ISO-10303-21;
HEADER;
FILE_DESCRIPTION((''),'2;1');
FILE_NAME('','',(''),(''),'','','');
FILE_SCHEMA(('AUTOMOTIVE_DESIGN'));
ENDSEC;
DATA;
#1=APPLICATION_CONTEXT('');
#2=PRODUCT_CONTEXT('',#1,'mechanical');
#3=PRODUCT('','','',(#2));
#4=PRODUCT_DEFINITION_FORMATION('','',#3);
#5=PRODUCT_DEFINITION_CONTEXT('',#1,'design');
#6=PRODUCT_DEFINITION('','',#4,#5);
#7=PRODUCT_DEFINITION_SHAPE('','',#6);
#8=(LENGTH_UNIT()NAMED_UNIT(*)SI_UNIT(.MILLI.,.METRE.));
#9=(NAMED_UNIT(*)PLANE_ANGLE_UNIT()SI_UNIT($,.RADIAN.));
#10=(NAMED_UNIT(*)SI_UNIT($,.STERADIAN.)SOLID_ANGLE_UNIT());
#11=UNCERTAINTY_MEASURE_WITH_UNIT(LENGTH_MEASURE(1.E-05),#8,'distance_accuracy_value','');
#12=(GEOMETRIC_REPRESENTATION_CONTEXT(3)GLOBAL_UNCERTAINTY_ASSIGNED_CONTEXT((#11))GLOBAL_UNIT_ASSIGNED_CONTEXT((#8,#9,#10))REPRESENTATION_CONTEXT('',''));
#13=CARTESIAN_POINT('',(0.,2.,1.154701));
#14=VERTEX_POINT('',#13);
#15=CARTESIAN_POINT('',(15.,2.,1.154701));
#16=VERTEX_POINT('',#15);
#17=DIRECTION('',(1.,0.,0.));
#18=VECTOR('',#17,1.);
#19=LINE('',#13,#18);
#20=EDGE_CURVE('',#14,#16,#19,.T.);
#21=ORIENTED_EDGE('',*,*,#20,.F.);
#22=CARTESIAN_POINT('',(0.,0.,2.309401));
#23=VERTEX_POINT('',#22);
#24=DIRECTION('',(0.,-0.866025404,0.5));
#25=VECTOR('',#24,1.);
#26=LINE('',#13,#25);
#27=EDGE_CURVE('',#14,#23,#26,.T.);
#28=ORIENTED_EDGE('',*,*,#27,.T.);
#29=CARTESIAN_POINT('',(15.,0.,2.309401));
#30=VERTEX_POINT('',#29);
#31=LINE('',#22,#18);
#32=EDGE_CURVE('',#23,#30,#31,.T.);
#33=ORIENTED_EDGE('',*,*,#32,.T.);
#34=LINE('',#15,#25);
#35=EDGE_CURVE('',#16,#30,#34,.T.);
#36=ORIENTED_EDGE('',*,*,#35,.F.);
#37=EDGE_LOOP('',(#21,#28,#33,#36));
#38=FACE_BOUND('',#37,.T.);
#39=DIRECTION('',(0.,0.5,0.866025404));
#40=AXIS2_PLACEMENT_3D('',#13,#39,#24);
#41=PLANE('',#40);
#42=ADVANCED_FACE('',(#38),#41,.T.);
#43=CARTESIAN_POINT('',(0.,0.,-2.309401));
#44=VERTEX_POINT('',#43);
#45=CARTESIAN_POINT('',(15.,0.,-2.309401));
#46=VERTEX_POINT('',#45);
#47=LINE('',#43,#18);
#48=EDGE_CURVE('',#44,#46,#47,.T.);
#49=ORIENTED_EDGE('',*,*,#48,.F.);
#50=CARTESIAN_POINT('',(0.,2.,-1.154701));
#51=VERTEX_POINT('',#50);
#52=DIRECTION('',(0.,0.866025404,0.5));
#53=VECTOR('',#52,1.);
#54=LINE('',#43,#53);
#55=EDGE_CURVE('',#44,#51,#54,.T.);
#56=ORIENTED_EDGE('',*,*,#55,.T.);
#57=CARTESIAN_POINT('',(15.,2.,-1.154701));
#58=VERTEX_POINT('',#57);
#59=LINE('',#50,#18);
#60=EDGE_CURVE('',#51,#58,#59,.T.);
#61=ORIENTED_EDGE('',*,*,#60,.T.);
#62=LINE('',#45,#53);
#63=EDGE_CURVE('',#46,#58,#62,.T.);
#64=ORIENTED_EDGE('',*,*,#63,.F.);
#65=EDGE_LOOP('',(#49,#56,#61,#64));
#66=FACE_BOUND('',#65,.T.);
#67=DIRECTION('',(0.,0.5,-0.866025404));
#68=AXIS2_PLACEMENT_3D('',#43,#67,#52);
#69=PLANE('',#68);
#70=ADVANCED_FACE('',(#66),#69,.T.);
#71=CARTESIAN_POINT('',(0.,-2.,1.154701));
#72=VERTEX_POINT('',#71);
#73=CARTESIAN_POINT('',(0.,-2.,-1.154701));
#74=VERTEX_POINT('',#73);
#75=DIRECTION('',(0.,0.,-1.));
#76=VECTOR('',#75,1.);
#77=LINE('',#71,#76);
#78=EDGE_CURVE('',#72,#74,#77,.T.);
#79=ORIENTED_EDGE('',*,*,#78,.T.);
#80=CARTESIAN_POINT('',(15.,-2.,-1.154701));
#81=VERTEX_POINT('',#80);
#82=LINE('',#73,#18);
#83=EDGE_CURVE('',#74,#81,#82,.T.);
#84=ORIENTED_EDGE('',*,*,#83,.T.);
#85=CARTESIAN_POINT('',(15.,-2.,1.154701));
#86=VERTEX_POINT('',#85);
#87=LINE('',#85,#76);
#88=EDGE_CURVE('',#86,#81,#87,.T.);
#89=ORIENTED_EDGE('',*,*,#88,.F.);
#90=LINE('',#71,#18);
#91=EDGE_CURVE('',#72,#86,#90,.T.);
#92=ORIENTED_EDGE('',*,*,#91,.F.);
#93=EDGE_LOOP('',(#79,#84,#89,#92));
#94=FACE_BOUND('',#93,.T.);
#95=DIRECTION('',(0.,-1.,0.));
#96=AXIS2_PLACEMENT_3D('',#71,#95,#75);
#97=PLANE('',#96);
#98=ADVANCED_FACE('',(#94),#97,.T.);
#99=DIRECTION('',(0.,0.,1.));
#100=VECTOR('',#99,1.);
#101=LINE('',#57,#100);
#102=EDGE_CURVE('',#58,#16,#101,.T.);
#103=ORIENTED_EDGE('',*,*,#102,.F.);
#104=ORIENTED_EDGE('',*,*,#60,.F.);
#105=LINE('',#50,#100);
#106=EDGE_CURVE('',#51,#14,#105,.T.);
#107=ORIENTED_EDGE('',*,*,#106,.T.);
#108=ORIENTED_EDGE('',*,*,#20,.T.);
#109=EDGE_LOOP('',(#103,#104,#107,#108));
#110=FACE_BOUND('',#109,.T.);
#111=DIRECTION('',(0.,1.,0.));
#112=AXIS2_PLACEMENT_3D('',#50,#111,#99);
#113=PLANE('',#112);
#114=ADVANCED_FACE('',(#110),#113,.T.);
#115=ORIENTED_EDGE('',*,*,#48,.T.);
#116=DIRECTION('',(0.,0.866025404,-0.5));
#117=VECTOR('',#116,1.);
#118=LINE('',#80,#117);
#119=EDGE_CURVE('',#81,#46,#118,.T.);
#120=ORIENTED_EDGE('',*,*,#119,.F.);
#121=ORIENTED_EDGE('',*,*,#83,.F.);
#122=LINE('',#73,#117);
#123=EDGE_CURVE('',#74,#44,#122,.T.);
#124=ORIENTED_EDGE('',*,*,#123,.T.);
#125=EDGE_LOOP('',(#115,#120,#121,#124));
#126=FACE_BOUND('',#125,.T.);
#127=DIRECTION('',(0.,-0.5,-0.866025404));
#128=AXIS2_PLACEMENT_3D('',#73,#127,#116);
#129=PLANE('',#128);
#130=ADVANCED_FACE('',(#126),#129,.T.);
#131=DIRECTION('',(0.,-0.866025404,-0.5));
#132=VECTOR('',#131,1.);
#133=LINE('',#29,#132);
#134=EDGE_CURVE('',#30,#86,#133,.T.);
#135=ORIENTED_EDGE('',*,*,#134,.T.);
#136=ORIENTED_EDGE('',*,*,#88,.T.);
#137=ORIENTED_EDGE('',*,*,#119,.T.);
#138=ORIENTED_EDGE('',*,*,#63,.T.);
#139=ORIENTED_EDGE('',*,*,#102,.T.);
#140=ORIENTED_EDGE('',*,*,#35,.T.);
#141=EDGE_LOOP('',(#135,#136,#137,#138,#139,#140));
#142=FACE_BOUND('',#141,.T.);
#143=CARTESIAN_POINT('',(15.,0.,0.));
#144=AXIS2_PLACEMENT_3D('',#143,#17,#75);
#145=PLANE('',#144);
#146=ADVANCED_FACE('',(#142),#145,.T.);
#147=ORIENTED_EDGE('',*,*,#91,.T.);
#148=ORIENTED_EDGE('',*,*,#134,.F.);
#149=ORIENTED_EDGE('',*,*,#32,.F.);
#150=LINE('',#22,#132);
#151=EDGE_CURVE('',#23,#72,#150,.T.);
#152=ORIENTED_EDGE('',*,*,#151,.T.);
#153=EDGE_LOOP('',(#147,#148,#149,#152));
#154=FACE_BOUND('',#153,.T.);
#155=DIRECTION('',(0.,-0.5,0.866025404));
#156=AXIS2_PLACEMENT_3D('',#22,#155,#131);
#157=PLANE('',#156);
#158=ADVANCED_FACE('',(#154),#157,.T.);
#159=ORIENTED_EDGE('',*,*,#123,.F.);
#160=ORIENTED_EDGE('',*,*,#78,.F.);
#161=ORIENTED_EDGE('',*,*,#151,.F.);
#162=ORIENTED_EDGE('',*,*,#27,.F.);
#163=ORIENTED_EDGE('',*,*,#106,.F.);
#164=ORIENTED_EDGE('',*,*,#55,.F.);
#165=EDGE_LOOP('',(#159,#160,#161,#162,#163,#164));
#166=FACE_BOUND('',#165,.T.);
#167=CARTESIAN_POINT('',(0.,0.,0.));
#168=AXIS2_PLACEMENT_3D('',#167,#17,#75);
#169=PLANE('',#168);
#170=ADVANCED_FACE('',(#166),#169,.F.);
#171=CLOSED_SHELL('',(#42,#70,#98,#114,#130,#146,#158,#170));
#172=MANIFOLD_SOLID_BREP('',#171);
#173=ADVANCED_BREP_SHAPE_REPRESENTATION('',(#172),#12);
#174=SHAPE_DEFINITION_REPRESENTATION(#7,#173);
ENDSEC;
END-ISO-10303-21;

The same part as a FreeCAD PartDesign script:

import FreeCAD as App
import Part
import Sketcher

V = App.Vector
Q = App.Units.Quantity

doc = App.newDocument("Part")
params = doc.addObject("Spreadsheet::Sheet", "Params")
for row, (alias, value) in enumerate([
    ("sketch1_diameter", "4 mm"),
    ("pad1_length", "15 mm"),
], start=1):
    params.set(f"A{row}", alias)
    params.set(f"B{row}", "=" + value)
    params.setAlias(f"B{row}", alias)

body = doc.addObject("PartDesign::Body", "Body")

# Sketch on YZ plane
sketch1 = body.newObject("Sketcher::SketchObject", "Sketch")
sketch1.AttachmentSupport = (doc.getObject("YZ_Plane"), [""])
sketch1.MapMode = "FlatFace"
sketch1.addGeometry(Part.Circle(V(0, 0, 0), V(0, 0, 1), 2), False)
sketch1.addConstraint(Sketcher.Constraint("Coincident", 0, 3, -1, 1))
sketch1.addConstraint(Sketcher.Constraint("Diameter", 0, Q("4 mm")))
sketch1.setExpression("Constraints[1]", "Params.sketch1_diameter")
pad1 = body.newObject("PartDesign::Pad", "Pad")
pad1.Profile = sketch1
pad1.setExpression("Length", "Params.pad1_length")

# Sketch on YZ plane
sketch2 = body.newObject("Sketcher::SketchObject", "Sketch001")
sketch2.AttachmentSupport = (doc.getObject("YZ_Plane"), [""])
sketch2.MapMode = "FlatFace"
sketch2.AttachmentOffset = App.Placement(V(0, 0, 15), App.Rotation())
sketch2.addGeometry(Part.LineSegment(V(0, -2.309401, 0), V(2, -1.154701, 0)), False)
sketch2.addGeometry(Part.LineSegment(V(2, -1.154701, 0), V(2, 1.154701, 0)), False)
sketch2.addGeometry(Part.LineSegment(V(2, 1.154701, 0), V(0, 2.309401, 0)), False)
sketch2.addGeometry(Part.LineSegment(V(0, 2.309401, 0), V(-2, 1.154701, 0)), False)
sketch2.addGeometry(Part.LineSegment(V(-2, 1.154701, 0), V(-2, -1.154701, 0)), False)
sketch2.addGeometry(Part.LineSegment(V(-2, -1.154701, 0), V(0, -2.309401, 0)), False)
sketch2.addConstraint(Sketcher.Constraint("Coincident", 0, 2, 1, 1))
sketch2.addConstraint(Sketcher.Constraint("Coincident", 1, 2, 2, 1))
sketch2.addConstraint(Sketcher.Constraint("Coincident", 2, 2, 3, 1))
sketch2.addConstraint(Sketcher.Constraint("Coincident", 3, 2, 4, 1))
sketch2.addConstraint(Sketcher.Constraint("Coincident", 4, 2, 5, 1))
sketch2.addConstraint(Sketcher.Constraint("Coincident", 5, 2, 0, 1))
sketch2.addConstraint(Sketcher.Constraint("Vertical", 1))
sketch2.addConstraint(Sketcher.Constraint("Vertical", 4))
sketch2.addConstraint(Sketcher.Constraint("Symmetric", 0, 2, 3, 2, -1, 1))
sketch2.addConstraint(Sketcher.Constraint("Symmetric", 2, 2, 5, 2, -1, 1))
sketch2.addConstraint(Sketcher.Constraint("PointOnObject", 2, 2, -2))
sketch2.addConstraint(Sketcher.Constraint("Parallel", 2, 5))
sketch2.addConstraint(Sketcher.Constraint("Horizontal", 1, 2, 3, 2))
sketch2.addConstraint(Sketcher.Constraint("Angle", 0, Q("30 deg")))
sketch2.addConstraint(Sketcher.Constraint("DistanceX", -1, 1, 0, 2, Q("2 mm")))
sketch2.addConstraint(Sketcher.Constraint("DistanceY", 1, 1, 1, 2, Q("2.309401 mm")))
pad2 = body.newObject("PartDesign::Pad", "Pad001")
pad2.Profile = sketch2
pad2.Type = "UpToLast"
pad2.Reversed = True

doc.recompute()
